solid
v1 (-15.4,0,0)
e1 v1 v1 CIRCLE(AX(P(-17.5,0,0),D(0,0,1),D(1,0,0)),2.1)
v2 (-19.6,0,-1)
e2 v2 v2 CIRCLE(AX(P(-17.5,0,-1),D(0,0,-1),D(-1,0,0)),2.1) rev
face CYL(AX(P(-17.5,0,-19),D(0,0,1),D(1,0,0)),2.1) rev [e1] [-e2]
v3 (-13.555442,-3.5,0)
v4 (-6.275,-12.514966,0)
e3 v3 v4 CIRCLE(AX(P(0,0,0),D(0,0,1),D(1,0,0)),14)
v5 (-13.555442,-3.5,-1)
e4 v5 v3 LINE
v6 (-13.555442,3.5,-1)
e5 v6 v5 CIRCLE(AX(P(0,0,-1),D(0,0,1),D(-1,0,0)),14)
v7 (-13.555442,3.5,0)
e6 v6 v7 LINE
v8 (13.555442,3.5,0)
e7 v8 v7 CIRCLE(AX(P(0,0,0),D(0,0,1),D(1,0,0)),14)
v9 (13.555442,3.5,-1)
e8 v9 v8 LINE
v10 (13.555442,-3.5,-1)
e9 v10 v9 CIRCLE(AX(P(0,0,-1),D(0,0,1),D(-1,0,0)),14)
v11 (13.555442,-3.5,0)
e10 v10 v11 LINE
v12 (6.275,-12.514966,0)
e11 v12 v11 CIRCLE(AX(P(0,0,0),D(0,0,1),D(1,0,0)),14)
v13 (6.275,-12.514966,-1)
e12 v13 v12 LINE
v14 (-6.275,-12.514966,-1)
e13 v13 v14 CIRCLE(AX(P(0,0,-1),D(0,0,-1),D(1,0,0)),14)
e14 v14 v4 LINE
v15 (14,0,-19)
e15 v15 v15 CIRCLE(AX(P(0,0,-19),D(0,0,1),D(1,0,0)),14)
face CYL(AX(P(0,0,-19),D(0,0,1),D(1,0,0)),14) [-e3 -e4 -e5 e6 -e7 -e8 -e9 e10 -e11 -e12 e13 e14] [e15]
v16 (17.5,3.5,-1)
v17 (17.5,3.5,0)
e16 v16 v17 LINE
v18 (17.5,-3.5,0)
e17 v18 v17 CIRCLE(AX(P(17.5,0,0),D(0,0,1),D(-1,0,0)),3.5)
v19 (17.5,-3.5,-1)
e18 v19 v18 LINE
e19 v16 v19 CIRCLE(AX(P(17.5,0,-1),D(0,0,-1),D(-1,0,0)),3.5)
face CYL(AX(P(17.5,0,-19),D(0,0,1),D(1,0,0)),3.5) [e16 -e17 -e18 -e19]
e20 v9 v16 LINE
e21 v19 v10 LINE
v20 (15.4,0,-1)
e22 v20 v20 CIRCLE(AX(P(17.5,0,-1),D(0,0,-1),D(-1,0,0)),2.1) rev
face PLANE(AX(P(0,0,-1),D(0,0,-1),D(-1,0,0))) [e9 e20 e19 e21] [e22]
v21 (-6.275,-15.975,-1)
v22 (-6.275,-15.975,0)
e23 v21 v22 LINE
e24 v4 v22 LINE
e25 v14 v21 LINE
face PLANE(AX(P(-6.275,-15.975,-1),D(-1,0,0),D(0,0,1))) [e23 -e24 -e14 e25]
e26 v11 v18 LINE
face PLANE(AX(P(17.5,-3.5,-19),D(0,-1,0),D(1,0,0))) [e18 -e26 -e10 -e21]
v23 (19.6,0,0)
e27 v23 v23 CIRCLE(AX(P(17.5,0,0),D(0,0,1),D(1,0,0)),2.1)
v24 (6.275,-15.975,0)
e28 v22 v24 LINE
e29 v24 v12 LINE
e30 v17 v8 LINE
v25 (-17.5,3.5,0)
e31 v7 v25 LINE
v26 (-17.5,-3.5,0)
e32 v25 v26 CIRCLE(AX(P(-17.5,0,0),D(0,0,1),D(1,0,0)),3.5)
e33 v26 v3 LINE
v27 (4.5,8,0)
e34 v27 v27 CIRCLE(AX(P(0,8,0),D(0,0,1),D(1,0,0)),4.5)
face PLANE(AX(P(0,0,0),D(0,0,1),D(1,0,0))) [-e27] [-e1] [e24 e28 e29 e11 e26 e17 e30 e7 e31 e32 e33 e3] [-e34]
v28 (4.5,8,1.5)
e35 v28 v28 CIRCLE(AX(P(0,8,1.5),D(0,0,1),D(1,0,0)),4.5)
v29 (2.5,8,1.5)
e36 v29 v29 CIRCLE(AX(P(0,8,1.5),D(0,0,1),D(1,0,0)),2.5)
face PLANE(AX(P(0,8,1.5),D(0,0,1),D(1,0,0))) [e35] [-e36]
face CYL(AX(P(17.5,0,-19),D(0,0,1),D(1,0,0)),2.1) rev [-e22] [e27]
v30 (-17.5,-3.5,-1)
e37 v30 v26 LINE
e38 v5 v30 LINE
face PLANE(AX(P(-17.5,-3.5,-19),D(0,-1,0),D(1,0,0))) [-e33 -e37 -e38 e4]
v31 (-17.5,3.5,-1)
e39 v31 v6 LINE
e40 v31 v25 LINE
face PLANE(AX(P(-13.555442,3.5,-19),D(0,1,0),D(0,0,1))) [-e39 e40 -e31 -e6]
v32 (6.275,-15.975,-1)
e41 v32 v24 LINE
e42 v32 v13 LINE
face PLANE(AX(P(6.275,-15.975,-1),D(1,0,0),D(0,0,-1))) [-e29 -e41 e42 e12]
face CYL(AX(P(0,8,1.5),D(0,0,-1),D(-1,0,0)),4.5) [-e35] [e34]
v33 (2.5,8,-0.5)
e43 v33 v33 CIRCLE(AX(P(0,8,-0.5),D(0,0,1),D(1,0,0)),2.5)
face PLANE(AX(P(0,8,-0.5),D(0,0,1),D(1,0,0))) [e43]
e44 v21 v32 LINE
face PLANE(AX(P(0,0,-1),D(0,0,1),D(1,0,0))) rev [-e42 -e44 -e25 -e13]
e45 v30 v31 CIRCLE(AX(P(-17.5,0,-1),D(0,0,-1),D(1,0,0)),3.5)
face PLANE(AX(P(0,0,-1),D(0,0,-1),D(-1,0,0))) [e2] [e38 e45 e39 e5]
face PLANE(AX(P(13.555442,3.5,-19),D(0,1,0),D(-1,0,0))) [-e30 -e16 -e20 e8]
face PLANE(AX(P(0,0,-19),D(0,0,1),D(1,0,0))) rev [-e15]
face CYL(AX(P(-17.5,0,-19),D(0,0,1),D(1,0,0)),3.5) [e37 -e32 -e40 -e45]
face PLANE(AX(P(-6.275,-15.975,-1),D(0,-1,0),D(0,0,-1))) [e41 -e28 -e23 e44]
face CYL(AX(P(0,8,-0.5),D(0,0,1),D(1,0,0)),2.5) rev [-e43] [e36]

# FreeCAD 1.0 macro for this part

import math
import FreeCAD as App
import Part
import Sketcher
from FreeCAD import Vector
Q = App.Units.Quantity

doc = App.newDocument("Part")
params = doc.addObject("Spreadsheet::Sheet", "Params")
for row, (alias, value) in enumerate([
    ("sketch1_radius", "14 mm"),
    ("sketch1_diameter", "4.2 mm"),
    ("sketch1_radius2", "3.5 mm"),
    ("pad1_length", "19 mm"),
    ("sketch2_radius", "14 mm"),
    ("sketch2_radius2", "3.5 mm"),
    ("pocket1_length", "18 mm"),
    ("sketch3_diameter", "9 mm"),
    ("pad2_length", "1.5 mm"),
    ("sketch4_diameter", "5 mm"),
    ("pocket2_length", "2 mm"),
    ("sketch5_radius", "14 mm"),
    ("sketch5_width", "12.55 mm"),
    ("pad3_length", "1 mm"),
], start=1):
    params.set(f"A{row}", alias)
    params.set(f"B{row}", "=" + value)
    params.setAlias(f"B{row}", alias)

body = doc.addObject("PartDesign::Body", "Body")

sketch1 = body.newObject("Sketcher::SketchObject", "Sketch")
sketch1.AttachmentSupport = (doc.getObject("XY_Plane"), [""])
sketch1.MapMode = "FlatFace"
sketch1.addGeometry(Part.LineSegment(Vector(17.5, 3.5, 0), Vector(13.6, 3.5, 0)), False)
sketch1.addGeometry(Part.ArcOfCircle(Part.Circle(Vector(0, 0, 0), Vector(0, 0, 1), 14), math.radians(14), math.radians(166)), False)
sketch1.addGeometry(Part.LineSegment(Vector(-13.6, 3.5, 0), Vector(-17.5, 3.5, 0)), False)
sketch1.addGeometry(Part.ArcOfCircle(Part.Circle(Vector(-17.5, 0, 0), Vector(0, 0, 1), 3.5), math.radians(90), math.radians(270)), False)
sketch1.addGeometry(Part.LineSegment(Vector(-17.5, -3.5, 0), Vector(-13.6, -3.5, 0)), False)
sketch1.addGeometry(Part.ArcOfCircle(Part.Circle(Vector(0, 0, 0), Vector(0, 0, 1), 14), math.radians(-166), math.radians(-14)), False)
sketch1.addGeometry(Part.LineSegment(Vector(13.6, -3.5, 0), Vector(17.5, -3.5, 0)), False)
sketch1.addGeometry(Part.ArcOfCircle(Part.Circle(Vector(17.5, 0, 0), Vector(0, 0, 1), 3.5), math.radians(-90), math.radians(90)), False)
sketch1.addGeometry(Part.Circle(Vector(17.5, 0, 0), Vector(0, 0, 1), 2.1), False)
sketch1.addGeometry(Part.Circle(Vector(-17.5, 0, 0), Vector(0, 0, 1), 2.1), False)
sketch1.addConstraint(Sketcher.Constraint("Coincident", 0, 2, 1, 1))
sketch1.addConstraint(Sketcher.Constraint("Coincident", 1, 2, 2, 1))
sketch1.addConstraint(Sketcher.Constraint("Tangent", 2, 2, 3, 1))
sketch1.addConstraint(Sketcher.Constraint("Tangent", 3, 2, 4, 1))
sketch1.addConstraint(Sketcher.Constraint("Coincident", 4, 2, 5, 1))
sketch1.addConstraint(Sketcher.Constraint("Coincident", 5, 2, 6, 1))
sketch1.addConstraint(Sketcher.Constraint("Tangent", 6, 2, 7, 1))
sketch1.addConstraint(Sketcher.Constraint("Tangent", 7, 2, 0, 1))
sketch1.addConstraint(Sketcher.Constraint("Horizontal", 0))
sketch1.addConstraint(Sketcher.Constraint("Horizontal", 2))
sketch1.addConstraint(Sketcher.Constraint("Horizontal", 4))
sketch1.addConstraint(Sketcher.Constraint("Horizontal", 6))
sketch1.addConstraint(Sketcher.Constraint("Coincident", 1, 3, -1, 1))
sketch1.addConstraint(Sketcher.Constraint("Coincident", 5, 3, -1, 1))
sketch1.addConstraint(Sketcher.Constraint("Coincident", 8, 3, 7, 3))
sketch1.addConstraint(Sketcher.Constraint("Coincident", 9, 3, 3, 3))
sketch1.addConstraint(Sketcher.Constraint("Equal", 1, 5))
sketch1.addConstraint(Sketcher.Constraint("Equal", 3, 7))
sketch1.addConstraint(Sketcher.Constraint("Equal", 8, 9))
sketch1.addConstraint(Sketcher.Constraint("Symmetric", 3, 3, 7, 3, -1, 1))
sketch1.addConstraint(Sketcher.Constraint("PointOnObject", 3, 3, -1))
sketch1.addConstraint(Sketcher.Constraint("Radius", 1, Q("14 mm")))
sketch1.addConstraint(Sketcher.Constraint("Diameter", 8, Q("4.2 mm")))
sketch1.addConstraint(Sketcher.Constraint("Radius", 3, Q("3.5 mm")))
sketch1.addConstraint(Sketcher.Constraint("DistanceX", 3, 3, 7, 3, Q("35 mm")))
sketch1.setExpression("Constraints[21]", "Params.sketch1_radius")
sketch1.setExpression("Constraints[22]", "Params.sketch1_diameter")
sketch1.setExpression("Constraints[23]", "Params.sketch1_radius2")
pad1 = body.newObject("PartDesign::Pad", "Pad")
pad1.Profile = sketch1
pad1.setExpression("Length", "Params.pad1_length")
pad1.Reversed = True

sketch2 = body.newObject("Sketcher::SketchObject", "Sketch001")
sketch2.AttachmentSupport = (doc.getObject("XY_Plane"), [""])
sketch2.MapMode = "FlatFace"
sketch2.AttachmentOffset = App.Placement(Vector(0, 0, -1), App.Rotation())
sketch2.addGeometry(Part.LineSegment(Vector(13.6, 3.5, 0), Vector(17.5, 3.5, 0)), False)
sketch2.addGeometry(Part.ArcOfCircle(Part.Circle(Vector(17.5, 0, 0), Vector(0, 0, 1), 3.5), math.radians(-90), math.radians(90)), False)
sketch2.addGeometry(Part.LineSegment(Vector(17.5, -3.5, 0), Vector(13.6, -3.5, 0)), False)
sketch2.addGeometry(Part.ArcOfCircle(Part.Circle(Vector(0, 0, 0), Vector(0, 0, 1), 14), math.radians(-14), math.radians(14)), False)
sketch2.addGeometry(Part.LineSegment(Vector(-17.5, 3.5, 0), Vector(-13.6, 3.5, 0)), False)
sketch2.addGeometry(Part.ArcOfCircle(Part.Circle(Vector(0, 0, 0), Vector(0, 0, 1), 14), math.radians(166), math.radians(194)), False)
sketch2.addGeometry(Part.LineSegment(Vector(-13.6, -3.5, 0), Vector(-17.5, -3.5, 0)), False)
sketch2.addGeometry(Part.ArcOfCircle(Part.Circle(Vector(-17.5, 0, 0), Vector(0, 0, 1), 3.5), math.radians(90), math.radians(270)), False)
sketch2.addConstraint(Sketcher.Constraint("Tangent", 0, 2, 1, 2))
sketch2.addConstraint(Sketcher.Constraint("Tangent", 1, 1, 2, 1))
sketch2.addConstraint(Sketcher.Constraint("Coincident", 2, 2, 3, 1))
sketch2.addConstraint(Sketcher.Constraint("Coincident", 3, 2, 0, 1))
sketch2.addConstraint(Sketcher.Constraint("Coincident", 4, 2, 5, 1))
sketch2.addConstraint(Sketcher.Constraint("Coincident", 5, 2, 6, 1))
sketch2.addConstraint(Sketcher.Constraint("Tangent", 6, 2, 7, 2))
sketch2.addConstraint(Sketcher.Constraint("Tangent", 7, 1, 4, 1))
sketch2.addConstraint(Sketcher.Constraint("Horizontal", 0))
sketch2.addConstraint(Sketcher.Constraint("Horizontal", 2))
sketch2.addConstraint(Sketcher.Constraint("Horizontal", 4))
sketch2.addConstraint(Sketcher.Constraint("Horizontal", 6))
sketch2.addConstraint(Sketcher.Constraint("Coincident", 3, 3, -1, 1))
sketch2.addConstraint(Sketcher.Constraint("Coincident", 5, 3, -1, 1))
sketch2.addConstraint(Sketcher.Constraint("Equal", 3, 5))
sketch2.addConstraint(Sketcher.Constraint("Equal", 1, 7))
sketch2.addConstraint(Sketcher.Constraint("Symmetric", 1, 3, 7, 3, -1, 1))
sketch2.addConstraint(Sketcher.Constraint("PointOnObject", 1, 3, -1))
sketch2.addConstraint(Sketcher.Constraint("Radius", 3, Q("14 mm")))
sketch2.addConstraint(Sketcher.Constraint("Radius", 1, Q("3.5 mm")))
sketch2.addConstraint(Sketcher.Constraint("DistanceX", 7, 3, 1, 3, Q("35 mm")))
sketch2.setExpression("Constraints[18]", "Params.sketch2_radius")
sketch2.setExpression("Constraints[19]", "Params.sketch2_radius2")
pocket1 = body.newObject("PartDesign::Pocket", "Pocket")
pocket1.Profile = sketch2
pocket1.setExpression("Length", "Params.pocket1_length")

sketch3 = body.newObject("Sketcher::SketchObject", "Sketch002")
sketch3.AttachmentSupport = (doc.getObject("XY_Plane"), [""])
sketch3.MapMode = "FlatFace"
sketch3.addGeometry(Part.Circle(Vector(0, 8, 0), Vector(0, 0, 1), 4.5), False)
sketch3.addConstraint(Sketcher.Constraint("PointOnObject", 0, 3, -2))
sketch3.addConstraint(Sketcher.Constraint("Diameter", 0, Q("9 mm")))
sketch3.addConstraint(Sketcher.Constraint("DistanceY", -1, 1, 0, 3, Q("8 mm")))
sketch3.setExpression("Constraints[1]", "Params.sketch3_diameter")
pad2 = body.newObject("PartDesign::Pad", "Pad001")
pad2.Profile = sketch3
pad2.setExpression("Length", "Params.pad2_length")

sketch4 = body.newObject("Sketcher::SketchObject", "Sketch003")
sketch4.AttachmentSupport = (doc.getObject("XY_Plane"), [""])
sketch4.MapMode = "FlatFace"
sketch4.AttachmentOffset = App.Placement(Vector(0, 0, 1.5), App.Rotation())
sketch4.addGeometry(Part.Circle(Vector(0, 8, 0), Vector(0, 0, 1), 2.5), False)
sketch4.addConstraint(Sketcher.Constraint("PointOnObject", 0, 3, -2))
sketch4.addConstraint(Sketcher.Constraint("Diameter", 0, Q("5 mm")))
sketch4.addConstraint(Sketcher.Constraint("DistanceY", -1, 1, 0, 3, Q("8 mm")))
sketch4.setExpression("Constraints[1]", "Params.sketch4_diameter")
pocket2 = body.newObject("PartDesign::Pocket", "Pocket001")
pocket2.Profile = sketch4
pocket2.setExpression("Length", "Params.pocket2_length")

sketch5 = body.newObject("Sketcher::SketchObject", "Sketch004")
sketch5.AttachmentSupport = (doc.getObject("XY_Plane"), [""])
sketch5.MapMode = "FlatFace"
sketch5.addGeometry(Part.LineSegment(Vector(-6.3, -16, 0), Vector(6.3, -16, 0)), False)
sketch5.addGeometry(Part.LineSegment(Vector(6.3, -16, 0), Vector(6.3, -12.5, 0)), False)
sketch5.addGeometry(Part.ArcOfCircle(Part.Circle(Vector(0, 0, 0), Vector(0, 0, 1), 14), math.radians(-117), math.radians(-63)), False)
sketch5.addGeometry(Part.LineSegment(Vector(-6.3, -12.5, 0), Vector(-6.3, -16, 0)), False)
sketch5.addConstraint(Sketcher.Constraint("Coincident", 0, 2, 1, 1))
sketch5.addConstraint(Sketcher.Constraint("Coincident", 1, 2, 2, 2))
sketch5.addConstraint(Sketcher.Constraint("Coincident", 2, 1, 3, 1))
sketch5.addConstraint(Sketcher.Constraint("Coincident", 3, 2, 0, 1))
sketch5.addConstraint(Sketcher.Constraint("Horizontal", 0))
sketch5.addConstraint(Sketcher.Constraint("Vertical", 1))
sketch5.addConstraint(Sketcher.Constraint("Vertical", 3))
sketch5.addConstraint(Sketcher.Constraint("Coincident", 2, 3, -1, 1))
sketch5.addConstraint(Sketcher.Constraint("Horizontal", 1, 2, 2, 1))
sketch5.addConstraint(Sketcher.Constraint("Radius", 2, Q("14 mm")))
sketch5.addConstraint(Sketcher.Constraint("DistanceX", 0, 1, 0, 2, Q("12.55 mm")))
sketch5.addConstraint(Sketcher.Constraint("DistanceY", 0, 2, -1, 1, Q("15.975 mm")))
sketch5.setExpression("Constraints[9]", "Params.sketch5_radius")
sketch5.setExpression("Constraints[10]", "Params.sketch5_width")
pad3 = body.newObject("PartDesign::Pad", "Pad002")
pad3.Profile = sketch5
pad3.setExpression("Length", "Params.pad3_length")
pad3.Reversed = True

doc.recompute()
